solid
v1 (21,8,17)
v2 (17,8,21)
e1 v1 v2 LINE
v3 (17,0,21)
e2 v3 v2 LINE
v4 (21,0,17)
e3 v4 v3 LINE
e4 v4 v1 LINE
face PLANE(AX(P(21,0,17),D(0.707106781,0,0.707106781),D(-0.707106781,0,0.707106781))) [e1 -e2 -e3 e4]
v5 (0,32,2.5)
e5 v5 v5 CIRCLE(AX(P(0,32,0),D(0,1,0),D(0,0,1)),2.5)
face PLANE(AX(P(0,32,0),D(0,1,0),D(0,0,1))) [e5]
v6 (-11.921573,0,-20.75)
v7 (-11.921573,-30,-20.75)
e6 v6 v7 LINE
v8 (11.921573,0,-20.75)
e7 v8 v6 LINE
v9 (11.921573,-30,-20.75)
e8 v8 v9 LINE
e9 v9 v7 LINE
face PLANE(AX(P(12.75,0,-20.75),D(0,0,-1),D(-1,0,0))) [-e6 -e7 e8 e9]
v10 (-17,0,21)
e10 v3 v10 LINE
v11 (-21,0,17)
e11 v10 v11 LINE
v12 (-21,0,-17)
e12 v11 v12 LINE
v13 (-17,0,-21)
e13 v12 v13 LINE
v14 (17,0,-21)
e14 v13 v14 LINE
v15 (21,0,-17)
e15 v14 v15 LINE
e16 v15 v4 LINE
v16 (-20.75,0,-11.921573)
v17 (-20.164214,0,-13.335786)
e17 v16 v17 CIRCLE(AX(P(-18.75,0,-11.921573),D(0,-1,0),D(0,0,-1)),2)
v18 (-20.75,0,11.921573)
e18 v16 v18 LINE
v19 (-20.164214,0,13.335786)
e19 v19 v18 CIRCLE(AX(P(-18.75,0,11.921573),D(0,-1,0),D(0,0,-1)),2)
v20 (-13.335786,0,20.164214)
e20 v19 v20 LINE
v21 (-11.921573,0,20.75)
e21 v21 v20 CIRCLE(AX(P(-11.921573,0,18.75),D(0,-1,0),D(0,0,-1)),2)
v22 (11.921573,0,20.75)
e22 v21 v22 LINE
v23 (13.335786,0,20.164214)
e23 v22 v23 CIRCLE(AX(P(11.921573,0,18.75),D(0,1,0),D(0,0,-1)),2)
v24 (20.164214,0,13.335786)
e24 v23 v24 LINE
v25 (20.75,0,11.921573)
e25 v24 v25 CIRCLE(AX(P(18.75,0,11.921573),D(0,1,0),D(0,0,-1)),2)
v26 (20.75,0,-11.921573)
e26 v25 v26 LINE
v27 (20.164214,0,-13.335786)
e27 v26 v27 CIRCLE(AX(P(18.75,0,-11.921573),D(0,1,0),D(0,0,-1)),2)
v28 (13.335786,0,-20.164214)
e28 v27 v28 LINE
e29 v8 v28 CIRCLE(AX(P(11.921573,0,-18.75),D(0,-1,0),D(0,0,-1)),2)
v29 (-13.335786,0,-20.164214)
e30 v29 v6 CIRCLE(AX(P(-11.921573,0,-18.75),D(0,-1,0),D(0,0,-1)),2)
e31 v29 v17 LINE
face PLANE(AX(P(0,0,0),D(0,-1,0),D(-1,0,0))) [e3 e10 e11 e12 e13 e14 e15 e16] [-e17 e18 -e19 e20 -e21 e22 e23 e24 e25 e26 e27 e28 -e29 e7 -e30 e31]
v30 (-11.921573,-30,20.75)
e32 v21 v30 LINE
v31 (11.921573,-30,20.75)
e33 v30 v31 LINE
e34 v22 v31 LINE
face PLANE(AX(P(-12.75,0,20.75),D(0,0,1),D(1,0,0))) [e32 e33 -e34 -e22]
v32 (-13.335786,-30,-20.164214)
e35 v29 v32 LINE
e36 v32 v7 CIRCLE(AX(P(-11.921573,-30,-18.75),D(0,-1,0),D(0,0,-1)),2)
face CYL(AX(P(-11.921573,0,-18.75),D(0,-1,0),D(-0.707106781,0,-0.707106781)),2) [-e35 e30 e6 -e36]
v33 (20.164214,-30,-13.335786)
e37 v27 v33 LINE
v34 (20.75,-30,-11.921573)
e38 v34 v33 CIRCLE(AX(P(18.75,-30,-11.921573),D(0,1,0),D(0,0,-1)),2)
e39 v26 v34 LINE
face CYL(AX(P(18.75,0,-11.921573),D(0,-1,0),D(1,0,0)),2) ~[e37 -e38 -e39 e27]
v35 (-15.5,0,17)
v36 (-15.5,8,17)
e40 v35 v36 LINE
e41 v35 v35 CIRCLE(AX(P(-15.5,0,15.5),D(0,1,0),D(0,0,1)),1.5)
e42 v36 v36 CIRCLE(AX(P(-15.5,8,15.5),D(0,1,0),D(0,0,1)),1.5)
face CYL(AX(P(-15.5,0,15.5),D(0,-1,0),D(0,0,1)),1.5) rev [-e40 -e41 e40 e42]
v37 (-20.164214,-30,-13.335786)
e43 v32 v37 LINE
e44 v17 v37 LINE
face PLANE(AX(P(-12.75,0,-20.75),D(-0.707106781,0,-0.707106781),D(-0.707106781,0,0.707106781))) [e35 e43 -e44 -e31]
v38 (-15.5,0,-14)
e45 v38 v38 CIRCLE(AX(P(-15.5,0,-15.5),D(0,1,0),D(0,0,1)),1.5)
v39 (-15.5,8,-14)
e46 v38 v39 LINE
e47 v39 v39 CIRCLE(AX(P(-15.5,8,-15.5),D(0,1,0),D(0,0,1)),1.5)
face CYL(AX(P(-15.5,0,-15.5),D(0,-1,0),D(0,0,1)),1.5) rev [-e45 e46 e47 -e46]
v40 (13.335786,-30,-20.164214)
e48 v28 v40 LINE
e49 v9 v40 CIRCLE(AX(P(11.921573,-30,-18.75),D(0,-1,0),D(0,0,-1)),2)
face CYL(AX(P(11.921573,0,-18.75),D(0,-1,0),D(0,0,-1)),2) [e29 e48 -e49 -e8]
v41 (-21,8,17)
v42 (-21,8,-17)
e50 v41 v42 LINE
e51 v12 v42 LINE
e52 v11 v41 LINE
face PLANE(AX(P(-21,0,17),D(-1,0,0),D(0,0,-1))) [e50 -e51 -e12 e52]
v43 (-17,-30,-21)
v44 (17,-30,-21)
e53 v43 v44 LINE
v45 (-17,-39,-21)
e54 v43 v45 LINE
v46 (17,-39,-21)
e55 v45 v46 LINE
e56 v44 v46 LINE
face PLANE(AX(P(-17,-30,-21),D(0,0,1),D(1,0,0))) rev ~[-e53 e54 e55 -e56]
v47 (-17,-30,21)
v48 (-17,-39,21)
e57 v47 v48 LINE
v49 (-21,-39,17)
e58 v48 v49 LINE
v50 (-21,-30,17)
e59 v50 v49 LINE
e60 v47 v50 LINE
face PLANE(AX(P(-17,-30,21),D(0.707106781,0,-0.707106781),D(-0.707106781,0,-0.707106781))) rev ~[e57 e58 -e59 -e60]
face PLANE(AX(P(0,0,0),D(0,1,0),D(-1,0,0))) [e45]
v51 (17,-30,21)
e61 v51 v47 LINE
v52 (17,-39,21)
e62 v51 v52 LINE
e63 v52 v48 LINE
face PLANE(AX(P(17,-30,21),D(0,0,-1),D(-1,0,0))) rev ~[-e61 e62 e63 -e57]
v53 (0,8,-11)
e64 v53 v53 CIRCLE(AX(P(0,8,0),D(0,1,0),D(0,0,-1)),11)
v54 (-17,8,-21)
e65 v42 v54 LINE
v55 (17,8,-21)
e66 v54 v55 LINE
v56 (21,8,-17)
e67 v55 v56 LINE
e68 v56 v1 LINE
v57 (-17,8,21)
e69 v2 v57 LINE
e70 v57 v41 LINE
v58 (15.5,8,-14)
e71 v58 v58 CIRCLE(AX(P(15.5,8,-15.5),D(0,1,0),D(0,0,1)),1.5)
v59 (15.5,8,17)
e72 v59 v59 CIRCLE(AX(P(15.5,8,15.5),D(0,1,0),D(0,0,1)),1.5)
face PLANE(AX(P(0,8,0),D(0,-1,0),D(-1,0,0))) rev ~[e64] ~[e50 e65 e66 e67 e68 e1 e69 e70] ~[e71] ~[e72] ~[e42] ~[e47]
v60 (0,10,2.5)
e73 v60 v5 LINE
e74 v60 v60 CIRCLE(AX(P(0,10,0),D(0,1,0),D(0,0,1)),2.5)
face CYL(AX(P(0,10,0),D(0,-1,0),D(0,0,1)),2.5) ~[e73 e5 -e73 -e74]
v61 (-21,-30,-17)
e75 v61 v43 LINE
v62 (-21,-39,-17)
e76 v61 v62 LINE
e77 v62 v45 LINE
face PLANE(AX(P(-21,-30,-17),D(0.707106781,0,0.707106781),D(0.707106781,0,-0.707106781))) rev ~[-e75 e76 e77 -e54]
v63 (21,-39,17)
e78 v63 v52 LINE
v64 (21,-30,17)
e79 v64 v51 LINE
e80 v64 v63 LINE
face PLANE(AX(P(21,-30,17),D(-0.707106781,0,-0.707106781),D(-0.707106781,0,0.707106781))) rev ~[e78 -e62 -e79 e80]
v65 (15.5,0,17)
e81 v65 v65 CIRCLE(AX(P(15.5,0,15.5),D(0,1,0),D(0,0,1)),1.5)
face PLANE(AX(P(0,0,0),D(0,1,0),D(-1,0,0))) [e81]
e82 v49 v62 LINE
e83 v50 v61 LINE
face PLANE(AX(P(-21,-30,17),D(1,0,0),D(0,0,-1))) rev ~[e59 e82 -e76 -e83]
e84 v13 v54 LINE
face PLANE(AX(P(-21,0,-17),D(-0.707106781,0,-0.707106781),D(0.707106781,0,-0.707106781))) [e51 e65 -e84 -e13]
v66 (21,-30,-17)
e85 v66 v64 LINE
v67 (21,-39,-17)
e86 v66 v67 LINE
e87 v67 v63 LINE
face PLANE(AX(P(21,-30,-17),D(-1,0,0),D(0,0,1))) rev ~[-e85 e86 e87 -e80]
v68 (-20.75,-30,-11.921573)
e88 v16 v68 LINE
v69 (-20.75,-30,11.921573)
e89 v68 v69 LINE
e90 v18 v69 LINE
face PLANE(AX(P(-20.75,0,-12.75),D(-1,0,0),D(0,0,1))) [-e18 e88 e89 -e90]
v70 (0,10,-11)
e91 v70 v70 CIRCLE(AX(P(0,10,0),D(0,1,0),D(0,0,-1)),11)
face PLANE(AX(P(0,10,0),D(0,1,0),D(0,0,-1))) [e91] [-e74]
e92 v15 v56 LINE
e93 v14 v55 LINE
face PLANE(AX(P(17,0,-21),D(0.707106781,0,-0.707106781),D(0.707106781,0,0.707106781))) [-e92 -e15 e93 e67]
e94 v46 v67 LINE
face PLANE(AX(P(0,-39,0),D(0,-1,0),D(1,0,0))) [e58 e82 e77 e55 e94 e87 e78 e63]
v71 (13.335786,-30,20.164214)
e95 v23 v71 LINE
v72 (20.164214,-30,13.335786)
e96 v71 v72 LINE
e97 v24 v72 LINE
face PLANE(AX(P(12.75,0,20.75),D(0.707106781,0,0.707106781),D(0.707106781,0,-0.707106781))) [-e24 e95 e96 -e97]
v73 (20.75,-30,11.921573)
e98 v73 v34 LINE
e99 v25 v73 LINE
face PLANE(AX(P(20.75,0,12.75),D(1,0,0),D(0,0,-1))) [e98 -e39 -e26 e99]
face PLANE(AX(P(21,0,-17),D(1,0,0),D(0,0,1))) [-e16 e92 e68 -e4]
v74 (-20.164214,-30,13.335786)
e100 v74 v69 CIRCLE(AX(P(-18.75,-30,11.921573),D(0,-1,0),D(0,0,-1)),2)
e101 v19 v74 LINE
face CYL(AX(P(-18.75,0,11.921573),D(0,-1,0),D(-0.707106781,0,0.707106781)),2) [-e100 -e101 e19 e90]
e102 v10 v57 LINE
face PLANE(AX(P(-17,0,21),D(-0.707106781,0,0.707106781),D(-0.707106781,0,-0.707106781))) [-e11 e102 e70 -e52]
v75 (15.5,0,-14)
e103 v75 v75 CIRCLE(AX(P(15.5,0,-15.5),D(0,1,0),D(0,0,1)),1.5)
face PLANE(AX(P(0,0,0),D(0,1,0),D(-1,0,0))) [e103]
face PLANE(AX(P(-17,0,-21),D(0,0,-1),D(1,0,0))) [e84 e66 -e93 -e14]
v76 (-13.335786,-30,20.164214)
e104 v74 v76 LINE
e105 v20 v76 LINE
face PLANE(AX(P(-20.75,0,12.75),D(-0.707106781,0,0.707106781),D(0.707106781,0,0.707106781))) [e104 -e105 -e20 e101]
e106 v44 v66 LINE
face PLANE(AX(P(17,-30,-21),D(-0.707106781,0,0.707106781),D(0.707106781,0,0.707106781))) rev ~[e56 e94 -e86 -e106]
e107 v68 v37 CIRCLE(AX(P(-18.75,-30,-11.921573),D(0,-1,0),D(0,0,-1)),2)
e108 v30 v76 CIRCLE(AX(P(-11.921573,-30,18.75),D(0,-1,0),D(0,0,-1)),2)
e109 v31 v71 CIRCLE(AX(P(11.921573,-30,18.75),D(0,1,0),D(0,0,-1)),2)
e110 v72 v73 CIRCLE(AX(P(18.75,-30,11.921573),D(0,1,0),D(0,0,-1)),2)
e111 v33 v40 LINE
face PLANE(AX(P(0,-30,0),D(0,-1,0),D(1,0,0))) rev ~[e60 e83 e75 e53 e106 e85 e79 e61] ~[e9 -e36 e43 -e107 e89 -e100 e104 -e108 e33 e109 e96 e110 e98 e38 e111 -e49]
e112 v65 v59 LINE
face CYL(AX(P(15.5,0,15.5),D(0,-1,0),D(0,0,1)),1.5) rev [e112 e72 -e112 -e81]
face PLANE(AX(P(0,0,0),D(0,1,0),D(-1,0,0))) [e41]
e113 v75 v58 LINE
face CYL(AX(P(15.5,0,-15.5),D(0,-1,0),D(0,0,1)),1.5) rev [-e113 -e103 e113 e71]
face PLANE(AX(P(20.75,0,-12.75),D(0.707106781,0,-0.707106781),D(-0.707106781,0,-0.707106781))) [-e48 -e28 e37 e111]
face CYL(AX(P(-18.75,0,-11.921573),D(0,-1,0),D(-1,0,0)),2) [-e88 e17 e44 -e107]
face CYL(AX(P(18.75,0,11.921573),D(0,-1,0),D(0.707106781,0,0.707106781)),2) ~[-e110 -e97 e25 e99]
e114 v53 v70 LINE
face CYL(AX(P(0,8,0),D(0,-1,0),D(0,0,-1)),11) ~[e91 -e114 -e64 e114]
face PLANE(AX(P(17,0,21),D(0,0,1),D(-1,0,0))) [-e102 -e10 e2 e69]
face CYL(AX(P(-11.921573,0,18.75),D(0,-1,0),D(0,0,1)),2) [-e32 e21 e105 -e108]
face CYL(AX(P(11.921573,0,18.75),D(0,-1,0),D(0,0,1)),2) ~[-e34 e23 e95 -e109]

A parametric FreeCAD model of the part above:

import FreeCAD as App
import Part
import Sketcher

V = App.Vector
Q = App.Units.Quantity


def edges_at(feature, points):
    """Names of the edges that pass closest to the given points."""
    edges = feature.Shape.Edges
    near = lambda p: min(range(len(edges)), key=lambda i: edges[i].distToShape(Part.Vertex(*p))[0])
    return sorted({f"Edge{near(p) + 1}" for p in points})

doc = App.newDocument("Part")
body = doc.addObject("PartDesign::Body", "Body")

# Sketch on XZ plane
sketch1 = body.newObject("Sketcher::SketchObject", "Sketch")
sketch1.AttachmentSupport = (doc.getObject("XZ_Plane"), [""])
sketch1.MapMode = "FlatFace"
sketch1.addGeometry([
    Part.LineSegment(V(17, -21, 0), V(-17, -21, 0)),  # 0
    Part.LineSegment(V(-17, -21, 0), V(-21, -17, 0)),  # 1
    Part.LineSegment(V(-21, -17, 0), V(-21, 17, 0)),  # 2
    Part.LineSegment(V(-21, 17, 0), V(-17, 21, 0)),  # 3
    Part.LineSegment(V(-17, 21, 0), V(17, 21, 0)),  # 4
    Part.LineSegment(V(17, 21, 0), V(21, 17, 0)),  # 5
    Part.LineSegment(V(21, 17, 0), V(21, -17, 0)),  # 6
    Part.LineSegment(V(21, -17, 0), V(17, -21, 0)),  # 7
    Part.Circle(V(15.5, 15.5, 0), V(0, 0, 1), 1.5),  # 8
    Part.Circle(V(-15.5, 15.5, 0), V(0, 0, 1), 1.5),  # 9
    Part.Circle(V(15.5, -15.5, 0), V(0, 0, 1), 1.5),  # 10
    Part.Circle(V(-15.5, -15.5, 0), V(0, 0, 1), 1.5),  # 11
], False)
sketch1.addConstraint([
    Sketcher.Constraint("Coincident", 0, 2, 1, 1),
    Sketcher.Constraint("Coincident", 1, 2, 2, 1),
    Sketcher.Constraint("Coincident", 2, 2, 3, 1),
    Sketcher.Constraint("Coincident", 3, 2, 4, 1),
    Sketcher.Constraint("Coincident", 4, 2, 5, 1),
    Sketcher.Constraint("Coincident", 5, 2, 6, 1),
    Sketcher.Constraint("Coincident", 6, 2, 7, 1),
    Sketcher.Constraint("Coincident", 7, 2, 0, 1),
    Sketcher.Constraint("Horizontal", 0),
    Sketcher.Constraint("Vertical", 2),
    Sketcher.Constraint("Horizontal", 4),
    Sketcher.Constraint("Vertical", 6),
    Sketcher.Constraint("Equal", 8, 9),
    Sketcher.Constraint("Equal", 9, 10),
    Sketcher.Constraint("Equal", 10, 11),
    Sketcher.Constraint("Symmetric", 9, 3, 10, 3, -1, 1),
    Sketcher.Constraint("Symmetric", 8, 3, 11, 3, -1, 1),
    Sketcher.Constraint("Symmetric", 0, 2, 4, 2, -1, 1),
    Sketcher.Constraint("Symmetric", 1, 2, 5, 2, -1, 1),
    Sketcher.Constraint("Symmetric", 8, 3, 9, 3, -2),
    Sketcher.Constraint("Perpendicular", 1, 3),
    Sketcher.Constraint("Perpendicular", 5, 7),
    Sketcher.Constraint("Horizontal", 2, 2, 5, 2),
    Sketcher.Constraint("Horizontal", 1, 2, 6, 2),
    Sketcher.Constraint("Vertical", 0, 2, 3, 2),
    Sketcher.Constraint("Equal", 4, 2),
    Sketcher.Constraint("Diameter", 8, Q("3 mm")),
    Sketcher.Constraint("DistanceX", 0, 2, 0, 1, Q("34 mm")),
    Sketcher.Constraint("DistanceY", 0, 2, -1, 1, Q("21 mm")),
    Sketcher.Constraint("DistanceX", 9, 3, 8, 3, Q("31 mm")),
    Sketcher.Constraint("DistanceY", 10, 3, 8, 3, Q("31 mm")),
])
pad1 = body.newObject("PartDesign::Pad", "Pad")
pad1.Profile = sketch1
pad1.Length = 8
pad1.Reversed = True

# Sketch on XZ plane
sketch2 = body.newObject("Sketcher::SketchObject", "Sketch001")
sketch2.AttachmentSupport = (doc.getObject("XZ_Plane"), [""])
sketch2.MapMode = "FlatFace"
sketch2.addGeometry([
    Part.LineSegment(V(13, 21, 0), V(-13, 21, 0)),  # 0
    Part.LineSegment(V(-13, 21, 0), V(-21, 13, 0)),  # 1
    Part.LineSegment(V(-21, 13, 0), V(-21, -13, 0)),  # 2
    Part.LineSegment(V(-21, -13, 0), V(-13, -21, 0)),  # 3
    Part.LineSegment(V(-13, -21, 0), V(13, -21, 0)),  # 4
    Part.LineSegment(V(13, -21, 0), V(21, -13, 0)),  # 5
    Part.LineSegment(V(21, -13, 0), V(21, 13, 0)),  # 6
    Part.LineSegment(V(21, 13, 0), V(13, 21, 0)),  # 7
], False)
sketch2.addConstraint([
    Sketcher.Constraint("Coincident", 0, 2, 1, 1),
    Sketcher.Constraint("Coincident", 1, 2, 2, 1),
    Sketcher.Constraint("Coincident", 2, 2, 3, 1),
    Sketcher.Constraint("Coincident", 3, 2, 4, 1),
    Sketcher.Constraint("Coincident", 4, 2, 5, 1),
    Sketcher.Constraint("Coincident", 5, 2, 6, 1),
    Sketcher.Constraint("Coincident", 6, 2, 7, 1),
    Sketcher.Constraint("Coincident", 7, 2, 0, 1),
    Sketcher.Constraint("Horizontal", 0),
    Sketcher.Constraint("Vertical", 2),
    Sketcher.Constraint("Horizontal", 4),
    Sketcher.Constraint("Vertical", 6),
    Sketcher.Constraint("Symmetric", 0, 2, 4, 2, -1, 1),
    Sketcher.Constraint("Symmetric", 1, 2, 5, 2, -1, 1),
    Sketcher.Constraint("Perpendicular", 1, 3),
    Sketcher.Constraint("Perpendicular", 5, 7),
    Sketcher.Constraint("Horizontal", 2, 2, 5, 2),
    Sketcher.Constraint("Horizontal", 1, 2, 6, 2),
    Sketcher.Constraint("Vertical", 0, 2, 3, 2),
    Sketcher.Constraint("Equal", 4, 2),
    Sketcher.Constraint("DistanceX", 0, 2, 0, 1, Q("25.5 mm")),
    Sketcher.Constraint("DistanceX", 1, 2, 0, 2, Q("8 mm")),
])
pad2 = body.newObject("PartDesign::Pad", "Pad001")
pad2.Profile = sketch2
pad2.Length = 30
doc.recompute()

fillet = body.newObject("PartDesign::Fillet", "Fillet")
fillet.Base = (pad2, edges_at(pad2, [
    (20.75, -15, 12.75),
    (12.75, -15, 20.75),
    (-12.75, -15, 20.75),
    (-20.75, -15, 12.75),
    (-20.75, -15, -12.75),
    (-12.75, -15, -20.75),
    (12.75, -15, -20.75),
    (20.75, -15, -12.75),
]))
fillet.Radius = 2

# Sketch on XZ plane
sketch3 = body.newObject("Sketcher::SketchObject", "Sketch002")
sketch3.AttachmentSupport = (doc.getObject("XZ_Plane"), [""])
sketch3.MapMode = "FlatFace"
sketch3.AttachmentOffset = App.Placement(V(0, 0, 30), App.Rotation())
sketch3.addGeometry([
    Part.LineSegment(V(-21, 17, 0), V(-21, -17, 0)),  # 0
    Part.LineSegment(V(-21, -17, 0), V(-17, -21, 0)),  # 1
    Part.LineSegment(V(-17, -21, 0), V(17, -21, 0)),  # 2
    Part.LineSegment(V(17, -21, 0), V(21, -17, 0)),  # 3
    Part.LineSegment(V(21, -17, 0), V(21, 17, 0)),  # 4
    Part.LineSegment(V(21, 17, 0), V(17, 21, 0)),  # 5
    Part.LineSegment(V(17, 21, 0), V(-17, 21, 0)),  # 6
    Part.LineSegment(V(-17, 21, 0), V(-21, 17, 0)),  # 7
], False)
sketch3.addConstraint([
    Sketcher.Constraint("Coincident", 0, 2, 1, 1),
    Sketcher.Constraint("Coincident", 1, 2, 2, 1),
    Sketcher.Constraint("Coincident", 2, 2, 3, 1),
    Sketcher.Constraint("Coincident", 3, 2, 4, 1),
    Sketcher.Constraint("Coincident", 4, 2, 5, 1),
    Sketcher.Constraint("Coincident", 5, 2, 6, 1),
    Sketcher.Constraint("Coincident", 6, 2, 7, 1),
    Sketcher.Constraint("Coincident", 7, 2, 0, 1),
    Sketcher.Constraint("Vertical", 0),
    Sketcher.Constraint("Horizontal", 2),
    Sketcher.Constraint("Vertical", 4),
    Sketcher.Constraint("Horizontal", 6),
    Sketcher.Constraint("Symmetric", 0, 2, 4, 2, -1, 1),
    Sketcher.Constraint("Symmetric", 1, 2, 5, 2, -1, 1),
    Sketcher.Constraint("Perpendicular", 1, 3),
    Sketcher.Constraint("Perpendicular", 5, 7),
    Sketcher.Constraint("Horizontal", 0, 2, 3, 2),
    Sketcher.Constraint("Horizontal", 4, 2, 7, 2),
    Sketcher.Constraint("Vertical", 2, 2, 5, 2),
    Sketcher.Constraint("Equal", 6, 0),
    Sketcher.Constraint("DistanceX", 2, 1, 2, 2, Q("34 mm")),
    Sketcher.Constraint("DistanceX", 0, 2, -1, 1, Q("21 mm")),
])
pad3 = body.newObject("PartDesign::Pad", "Pad002")
pad3.Profile = sketch3
pad3.Length = 9

# Sketch on XZ plane
sketch4 = body.newObject("Sketcher::SketchObject", "Sketch003")
sketch4.AttachmentSupport = (doc.getObject("XZ_Plane"), [""])
sketch4.MapMode = "FlatFace"
sketch4.AttachmentOffset = App.Placement(V(0, 0, -8), App.Rotation())
sketch4.addGeometry(Part.Circle(V(0, 0, 0), V(0, 0, 1), 11), False)
sketch4.addConstraint([
    Sketcher.Constraint("Coincident", 0, 3, -1, 1),
    Sketcher.Constraint("Diameter", 0, Q("22 mm")),
])
pad4 = body.newObject("PartDesign::Pad", "Pad003")
pad4.Profile = sketch4
pad4.Length = 2
pad4.Reversed = True

# Sketch on XZ plane
sketch5 = body.newObject("Sketcher::SketchObject", "Sketch004")
sketch5.AttachmentSupport = (doc.getObject("XZ_Plane"), [""])
sketch5.MapMode = "FlatFace"
sketch5.AttachmentOffset = App.Placement(V(0, 0, -10), App.Rotation())
sketch5.addGeometry(Part.Circle(V(0, 0, 0), V(0, 0, 1), 2.5), False)
sketch5.addConstraint([
    Sketcher.Constraint("Coincident", 0, 3, -1, 1),
    Sketcher.Constraint("Diameter", 0, Q("5 mm")),
])
pad5 = body.newObject("PartDesign::Pad", "Pad004")
pad5.Profile = sketch5
pad5.Length = 22
pad5.Reversed = True

doc.recompute()
